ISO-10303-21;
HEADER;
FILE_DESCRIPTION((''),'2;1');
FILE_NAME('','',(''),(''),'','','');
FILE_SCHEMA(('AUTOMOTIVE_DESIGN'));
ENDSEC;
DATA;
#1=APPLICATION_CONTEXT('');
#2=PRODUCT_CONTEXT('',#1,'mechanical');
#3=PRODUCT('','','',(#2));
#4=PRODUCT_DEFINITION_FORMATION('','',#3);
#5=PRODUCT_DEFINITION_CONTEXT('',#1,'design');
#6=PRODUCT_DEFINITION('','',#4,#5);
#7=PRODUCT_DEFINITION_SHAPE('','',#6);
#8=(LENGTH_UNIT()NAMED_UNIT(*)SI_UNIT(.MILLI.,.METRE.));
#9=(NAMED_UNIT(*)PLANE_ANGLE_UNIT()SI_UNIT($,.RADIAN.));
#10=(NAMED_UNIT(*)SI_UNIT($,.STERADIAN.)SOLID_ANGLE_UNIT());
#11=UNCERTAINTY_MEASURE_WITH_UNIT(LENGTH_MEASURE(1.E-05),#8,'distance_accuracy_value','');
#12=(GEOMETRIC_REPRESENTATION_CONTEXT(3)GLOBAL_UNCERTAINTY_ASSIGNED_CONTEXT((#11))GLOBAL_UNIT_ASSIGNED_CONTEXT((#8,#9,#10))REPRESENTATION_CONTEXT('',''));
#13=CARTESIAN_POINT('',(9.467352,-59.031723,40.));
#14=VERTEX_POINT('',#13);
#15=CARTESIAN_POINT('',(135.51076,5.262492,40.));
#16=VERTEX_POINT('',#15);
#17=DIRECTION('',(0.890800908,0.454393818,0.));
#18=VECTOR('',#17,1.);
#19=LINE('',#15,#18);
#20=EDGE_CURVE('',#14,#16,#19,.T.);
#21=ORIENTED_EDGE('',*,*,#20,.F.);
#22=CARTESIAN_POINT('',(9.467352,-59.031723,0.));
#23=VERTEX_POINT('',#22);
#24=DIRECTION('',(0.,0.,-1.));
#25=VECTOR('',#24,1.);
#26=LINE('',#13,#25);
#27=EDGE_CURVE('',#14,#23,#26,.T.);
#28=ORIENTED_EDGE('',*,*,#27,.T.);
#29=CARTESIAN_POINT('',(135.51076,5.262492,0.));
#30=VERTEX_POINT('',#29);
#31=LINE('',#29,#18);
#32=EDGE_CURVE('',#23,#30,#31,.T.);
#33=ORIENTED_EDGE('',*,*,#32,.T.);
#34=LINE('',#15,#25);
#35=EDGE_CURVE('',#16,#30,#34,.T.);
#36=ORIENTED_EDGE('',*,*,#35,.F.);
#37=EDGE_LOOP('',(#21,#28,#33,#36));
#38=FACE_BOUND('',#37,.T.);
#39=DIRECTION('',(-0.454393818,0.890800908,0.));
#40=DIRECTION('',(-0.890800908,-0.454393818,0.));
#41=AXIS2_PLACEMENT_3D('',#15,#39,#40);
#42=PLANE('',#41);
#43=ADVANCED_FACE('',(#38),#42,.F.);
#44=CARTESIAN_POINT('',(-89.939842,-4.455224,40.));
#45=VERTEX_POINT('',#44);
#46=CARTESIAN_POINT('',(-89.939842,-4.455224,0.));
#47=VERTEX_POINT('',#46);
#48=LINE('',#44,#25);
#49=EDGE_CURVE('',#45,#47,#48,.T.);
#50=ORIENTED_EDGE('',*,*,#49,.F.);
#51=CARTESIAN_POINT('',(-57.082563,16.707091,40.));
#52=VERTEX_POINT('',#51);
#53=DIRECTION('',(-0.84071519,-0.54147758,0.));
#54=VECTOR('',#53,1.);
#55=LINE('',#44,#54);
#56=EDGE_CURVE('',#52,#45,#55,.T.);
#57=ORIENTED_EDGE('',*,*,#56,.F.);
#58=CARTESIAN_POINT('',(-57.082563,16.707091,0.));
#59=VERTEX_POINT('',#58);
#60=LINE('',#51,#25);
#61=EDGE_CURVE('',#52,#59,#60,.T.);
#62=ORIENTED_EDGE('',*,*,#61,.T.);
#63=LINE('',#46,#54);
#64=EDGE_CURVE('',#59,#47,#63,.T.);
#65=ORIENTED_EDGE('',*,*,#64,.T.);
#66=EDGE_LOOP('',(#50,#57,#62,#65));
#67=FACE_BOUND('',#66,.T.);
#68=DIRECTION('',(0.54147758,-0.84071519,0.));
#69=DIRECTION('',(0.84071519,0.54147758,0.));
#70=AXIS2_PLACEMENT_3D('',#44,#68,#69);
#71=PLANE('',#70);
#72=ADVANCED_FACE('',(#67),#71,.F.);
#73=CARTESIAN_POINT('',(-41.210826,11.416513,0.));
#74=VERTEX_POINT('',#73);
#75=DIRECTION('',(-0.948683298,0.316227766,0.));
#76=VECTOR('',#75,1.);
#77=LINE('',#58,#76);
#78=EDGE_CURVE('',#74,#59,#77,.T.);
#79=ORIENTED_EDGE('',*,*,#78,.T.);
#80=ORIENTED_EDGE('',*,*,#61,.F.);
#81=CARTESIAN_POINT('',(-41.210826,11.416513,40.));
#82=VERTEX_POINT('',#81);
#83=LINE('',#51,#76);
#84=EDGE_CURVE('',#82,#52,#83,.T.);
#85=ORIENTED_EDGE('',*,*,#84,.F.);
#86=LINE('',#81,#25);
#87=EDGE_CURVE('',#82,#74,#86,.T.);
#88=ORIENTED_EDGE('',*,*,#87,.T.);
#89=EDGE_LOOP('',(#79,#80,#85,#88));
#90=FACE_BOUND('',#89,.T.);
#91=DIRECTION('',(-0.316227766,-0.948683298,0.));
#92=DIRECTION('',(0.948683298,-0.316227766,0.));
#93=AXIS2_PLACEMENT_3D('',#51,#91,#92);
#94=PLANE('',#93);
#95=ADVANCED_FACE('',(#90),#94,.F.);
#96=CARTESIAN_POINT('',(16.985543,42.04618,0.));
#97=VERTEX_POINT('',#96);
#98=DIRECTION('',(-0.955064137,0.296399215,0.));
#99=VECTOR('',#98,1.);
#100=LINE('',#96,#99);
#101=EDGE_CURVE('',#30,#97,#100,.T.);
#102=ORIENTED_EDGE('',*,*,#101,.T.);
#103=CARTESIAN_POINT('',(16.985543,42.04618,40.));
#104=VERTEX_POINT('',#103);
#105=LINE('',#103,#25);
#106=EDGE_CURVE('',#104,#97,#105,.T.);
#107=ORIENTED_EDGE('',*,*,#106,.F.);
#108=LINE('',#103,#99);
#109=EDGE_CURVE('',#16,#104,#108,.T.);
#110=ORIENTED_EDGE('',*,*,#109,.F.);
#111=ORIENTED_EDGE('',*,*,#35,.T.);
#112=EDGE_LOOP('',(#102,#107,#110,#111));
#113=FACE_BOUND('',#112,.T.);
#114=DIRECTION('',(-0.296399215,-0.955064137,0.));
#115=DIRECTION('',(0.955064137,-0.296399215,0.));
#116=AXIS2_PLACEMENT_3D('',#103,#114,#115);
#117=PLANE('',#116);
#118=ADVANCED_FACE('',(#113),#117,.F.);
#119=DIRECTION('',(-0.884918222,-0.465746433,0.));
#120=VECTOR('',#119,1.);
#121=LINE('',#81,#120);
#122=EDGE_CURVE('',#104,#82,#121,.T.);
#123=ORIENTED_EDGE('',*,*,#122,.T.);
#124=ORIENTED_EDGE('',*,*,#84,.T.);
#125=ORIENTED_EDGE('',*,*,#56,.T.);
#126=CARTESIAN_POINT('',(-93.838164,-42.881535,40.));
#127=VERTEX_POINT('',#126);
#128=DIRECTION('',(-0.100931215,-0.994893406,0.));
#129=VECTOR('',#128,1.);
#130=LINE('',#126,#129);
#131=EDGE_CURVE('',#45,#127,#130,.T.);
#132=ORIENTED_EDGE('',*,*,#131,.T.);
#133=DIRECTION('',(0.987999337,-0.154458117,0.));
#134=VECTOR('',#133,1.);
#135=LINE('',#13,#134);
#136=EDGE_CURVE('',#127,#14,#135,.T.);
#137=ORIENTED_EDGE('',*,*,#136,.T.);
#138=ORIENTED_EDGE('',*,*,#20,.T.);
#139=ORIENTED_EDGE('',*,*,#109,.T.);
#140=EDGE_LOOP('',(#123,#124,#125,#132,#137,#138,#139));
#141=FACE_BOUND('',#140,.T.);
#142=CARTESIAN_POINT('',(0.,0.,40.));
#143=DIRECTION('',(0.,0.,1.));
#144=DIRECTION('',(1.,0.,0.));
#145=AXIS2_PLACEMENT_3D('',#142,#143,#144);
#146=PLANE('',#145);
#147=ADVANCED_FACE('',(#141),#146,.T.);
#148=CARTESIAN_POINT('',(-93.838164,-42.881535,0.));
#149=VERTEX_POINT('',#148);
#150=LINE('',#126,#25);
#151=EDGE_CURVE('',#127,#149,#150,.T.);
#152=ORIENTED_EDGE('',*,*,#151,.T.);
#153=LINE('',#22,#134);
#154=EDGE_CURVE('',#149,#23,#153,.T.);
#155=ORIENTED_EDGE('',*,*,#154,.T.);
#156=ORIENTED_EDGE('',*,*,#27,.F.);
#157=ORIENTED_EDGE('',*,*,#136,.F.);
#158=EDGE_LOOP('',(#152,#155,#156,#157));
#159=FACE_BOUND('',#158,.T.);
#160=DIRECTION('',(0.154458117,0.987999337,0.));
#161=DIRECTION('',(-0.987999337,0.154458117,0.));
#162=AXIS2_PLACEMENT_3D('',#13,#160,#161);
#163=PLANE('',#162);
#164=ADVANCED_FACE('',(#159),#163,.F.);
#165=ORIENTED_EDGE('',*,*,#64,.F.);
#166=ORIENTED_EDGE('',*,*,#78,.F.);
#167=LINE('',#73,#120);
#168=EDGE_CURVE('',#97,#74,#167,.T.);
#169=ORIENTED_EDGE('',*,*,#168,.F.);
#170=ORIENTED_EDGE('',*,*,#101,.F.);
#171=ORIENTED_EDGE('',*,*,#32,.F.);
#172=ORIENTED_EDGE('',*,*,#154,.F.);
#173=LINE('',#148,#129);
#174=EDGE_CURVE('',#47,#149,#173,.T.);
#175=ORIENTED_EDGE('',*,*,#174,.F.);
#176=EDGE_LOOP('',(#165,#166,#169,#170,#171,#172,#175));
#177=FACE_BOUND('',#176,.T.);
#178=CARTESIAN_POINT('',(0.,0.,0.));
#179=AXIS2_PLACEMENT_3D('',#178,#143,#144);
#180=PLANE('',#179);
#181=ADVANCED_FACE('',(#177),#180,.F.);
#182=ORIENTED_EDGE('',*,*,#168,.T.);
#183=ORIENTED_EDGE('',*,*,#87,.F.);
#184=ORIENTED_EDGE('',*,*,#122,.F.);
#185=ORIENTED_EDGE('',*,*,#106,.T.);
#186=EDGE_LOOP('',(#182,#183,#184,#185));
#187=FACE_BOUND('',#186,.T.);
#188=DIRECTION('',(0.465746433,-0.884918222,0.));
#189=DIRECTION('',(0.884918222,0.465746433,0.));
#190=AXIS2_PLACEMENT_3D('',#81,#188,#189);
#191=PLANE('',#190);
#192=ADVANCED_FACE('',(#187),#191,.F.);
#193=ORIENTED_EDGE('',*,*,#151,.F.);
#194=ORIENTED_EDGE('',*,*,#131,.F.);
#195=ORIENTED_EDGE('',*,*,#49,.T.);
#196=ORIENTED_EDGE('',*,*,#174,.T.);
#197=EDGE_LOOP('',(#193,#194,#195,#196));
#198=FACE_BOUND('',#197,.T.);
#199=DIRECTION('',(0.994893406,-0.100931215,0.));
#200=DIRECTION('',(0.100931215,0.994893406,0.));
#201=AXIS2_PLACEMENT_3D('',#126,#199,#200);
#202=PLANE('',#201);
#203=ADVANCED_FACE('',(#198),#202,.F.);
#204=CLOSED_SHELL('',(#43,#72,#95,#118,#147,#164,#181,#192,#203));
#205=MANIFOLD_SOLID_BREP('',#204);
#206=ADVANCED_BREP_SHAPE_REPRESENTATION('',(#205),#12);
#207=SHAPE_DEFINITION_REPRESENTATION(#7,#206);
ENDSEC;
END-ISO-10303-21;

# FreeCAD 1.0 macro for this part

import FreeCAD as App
import Part
import Sketcher

V = App.Vector

doc = App.newDocument("Part")
body = doc.addObject("PartDesign::Body", "Body")

# Sketch on XY plane
sketch1 = body.newObject("Sketcher::SketchObject", "Sketch")
sketch1.AttachmentSupport = (doc.getObject("XY_Plane"), [""])
sketch1.MapMode = "FlatFace"
sketch1.addGeometry([
    Part.LineSegment(V(17, 42, 0), V(-41, 11, 0)),  # 0
    Part.LineSegment(V(-41, 11, 0), V(-57, 17, 0)),  # 1
    Part.LineSegment(V(-57, 17, 0), V(-90, -4, 0)),  # 2
    Part.LineSegment(V(-90, -4, 0), V(-94, -43, 0)),  # 3
    Part.LineSegment(V(-94, -43, 0), V(9, -59, 0)),  # 4
    Part.LineSegment(V(9, -59, 0), V(136, 5, 0)),  # 5
    Part.LineSegment(V(136, 5, 0), V(17, 42, 0)),  # 6
], False)
sketch1.addConstraint([
    Sketcher.Constraint("Coincident", 0, 2, 1, 1),
    Sketcher.Constraint("Coincident", 1, 2, 2, 1),
    Sketcher.Constraint("Coincident", 2, 2, 3, 1),
    Sketcher.Constraint("Coincident", 3, 2, 4, 1),
    Sketcher.Constraint("Coincident", 4, 2, 5, 1),
    Sketcher.Constraint("Coincident", 5, 2, 6, 1),
    Sketcher.Constraint("Coincident", 6, 2, 0, 1),
    Sketcher.Constraint("DistanceX", 3, 2, 1, 2, 36.755601),
    Sketcher.Constraint("DistanceY", 4, 2, 2, 2, 54.576499),
    Sketcher.Constraint("DistanceY", 5, 2, 1, 2, 11.444599),
    Sketcher.Constraint("Distance", 1, 16.73028),
    Sketcher.Constraint("Distance", 4, 104.560309),
    Sketcher.Constraint("Distance", 6, 124.10184),
    Sketcher.Constraint("DistanceY", -1, 1, 1, 2, 16.707091),
    Sketcher.Constraint("DistanceX", -1, 1, 4, 2, 9.467352),
    Sketcher.Constraint("DistanceX", -1, 1, 5, 2, 135.51076),
    Sketcher.Constraint("DistanceY", -1, 1, 6, 2, 42.04618),
    Sketcher.Constraint("DistanceY", 0, 2, 1, 2, 5.290579),
    Sketcher.Constraint("DistanceX", 2, 2, 1, 2, 32.85728),
    Sketcher.Constraint("DistanceY", 3, 2, 2, 2, 38.42631),
    Sketcher.Constraint("Distance", 2, 39.082534),
])
pad1 = body.newObject("PartDesign::Pad", "Pad")
pad1.Profile = sketch1
pad1.Length = 40

doc.recompute()
